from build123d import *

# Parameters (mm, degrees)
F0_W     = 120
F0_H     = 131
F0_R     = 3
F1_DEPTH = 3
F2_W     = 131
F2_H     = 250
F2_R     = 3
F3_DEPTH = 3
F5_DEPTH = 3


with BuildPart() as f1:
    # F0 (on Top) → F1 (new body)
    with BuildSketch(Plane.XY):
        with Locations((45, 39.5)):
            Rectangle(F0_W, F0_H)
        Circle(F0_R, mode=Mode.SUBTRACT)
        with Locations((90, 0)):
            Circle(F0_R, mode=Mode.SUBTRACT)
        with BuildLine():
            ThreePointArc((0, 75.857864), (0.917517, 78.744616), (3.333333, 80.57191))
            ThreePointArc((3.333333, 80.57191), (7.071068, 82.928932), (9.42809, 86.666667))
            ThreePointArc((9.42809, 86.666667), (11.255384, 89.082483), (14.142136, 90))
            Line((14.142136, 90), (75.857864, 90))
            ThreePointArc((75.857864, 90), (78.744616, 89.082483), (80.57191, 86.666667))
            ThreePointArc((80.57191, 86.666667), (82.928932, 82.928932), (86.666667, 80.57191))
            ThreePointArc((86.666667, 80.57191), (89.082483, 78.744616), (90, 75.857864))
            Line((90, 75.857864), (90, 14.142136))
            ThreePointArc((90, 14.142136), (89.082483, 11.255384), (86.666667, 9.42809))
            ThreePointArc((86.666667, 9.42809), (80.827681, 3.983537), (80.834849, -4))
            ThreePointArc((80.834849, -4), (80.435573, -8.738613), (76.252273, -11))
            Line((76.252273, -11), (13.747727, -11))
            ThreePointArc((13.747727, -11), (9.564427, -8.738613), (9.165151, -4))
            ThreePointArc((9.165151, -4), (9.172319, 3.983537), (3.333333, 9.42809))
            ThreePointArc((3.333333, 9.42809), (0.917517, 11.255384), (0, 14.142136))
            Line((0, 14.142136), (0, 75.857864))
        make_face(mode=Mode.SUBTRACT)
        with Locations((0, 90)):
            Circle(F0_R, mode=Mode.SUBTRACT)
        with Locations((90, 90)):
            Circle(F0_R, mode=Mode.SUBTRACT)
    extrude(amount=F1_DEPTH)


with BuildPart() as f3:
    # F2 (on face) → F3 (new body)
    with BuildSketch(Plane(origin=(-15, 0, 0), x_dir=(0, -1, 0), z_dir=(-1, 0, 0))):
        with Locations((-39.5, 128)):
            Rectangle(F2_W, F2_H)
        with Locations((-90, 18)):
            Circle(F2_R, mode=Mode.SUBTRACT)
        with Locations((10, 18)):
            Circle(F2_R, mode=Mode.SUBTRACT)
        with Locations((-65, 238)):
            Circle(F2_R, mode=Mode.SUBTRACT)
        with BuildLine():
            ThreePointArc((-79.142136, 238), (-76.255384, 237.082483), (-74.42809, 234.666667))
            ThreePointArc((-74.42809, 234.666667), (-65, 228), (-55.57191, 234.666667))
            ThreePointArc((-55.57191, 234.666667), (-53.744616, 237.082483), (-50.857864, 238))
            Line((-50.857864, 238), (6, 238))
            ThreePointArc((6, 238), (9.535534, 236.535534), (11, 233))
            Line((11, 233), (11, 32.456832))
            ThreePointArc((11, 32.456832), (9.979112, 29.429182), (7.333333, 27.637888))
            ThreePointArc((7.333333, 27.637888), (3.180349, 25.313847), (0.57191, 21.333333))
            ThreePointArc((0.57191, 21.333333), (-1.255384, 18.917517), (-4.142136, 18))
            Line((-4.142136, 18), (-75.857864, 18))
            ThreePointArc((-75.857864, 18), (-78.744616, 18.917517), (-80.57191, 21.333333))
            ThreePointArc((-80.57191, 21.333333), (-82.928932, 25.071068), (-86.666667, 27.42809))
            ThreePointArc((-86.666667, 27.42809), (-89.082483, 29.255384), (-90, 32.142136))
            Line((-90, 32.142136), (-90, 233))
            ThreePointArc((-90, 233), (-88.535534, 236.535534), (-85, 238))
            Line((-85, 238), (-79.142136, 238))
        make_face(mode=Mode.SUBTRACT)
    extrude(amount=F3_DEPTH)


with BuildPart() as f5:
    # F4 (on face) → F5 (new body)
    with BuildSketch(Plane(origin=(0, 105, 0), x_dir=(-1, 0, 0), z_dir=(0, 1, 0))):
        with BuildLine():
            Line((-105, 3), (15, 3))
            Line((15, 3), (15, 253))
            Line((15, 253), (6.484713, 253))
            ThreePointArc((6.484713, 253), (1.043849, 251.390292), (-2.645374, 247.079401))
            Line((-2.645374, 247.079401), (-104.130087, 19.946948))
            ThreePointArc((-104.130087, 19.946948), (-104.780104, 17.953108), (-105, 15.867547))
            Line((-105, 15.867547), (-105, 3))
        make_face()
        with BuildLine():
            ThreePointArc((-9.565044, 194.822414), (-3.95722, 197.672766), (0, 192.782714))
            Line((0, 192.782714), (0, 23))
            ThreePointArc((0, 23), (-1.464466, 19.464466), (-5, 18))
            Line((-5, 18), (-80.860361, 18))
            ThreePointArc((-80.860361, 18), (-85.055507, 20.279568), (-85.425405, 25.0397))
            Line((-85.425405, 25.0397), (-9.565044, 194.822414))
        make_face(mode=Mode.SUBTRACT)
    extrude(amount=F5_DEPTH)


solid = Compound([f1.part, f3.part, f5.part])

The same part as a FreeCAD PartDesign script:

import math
import FreeCAD as App
import Part
import Sketcher
Q = App.Units.Quantity


def add_polygon(sketch, points):
    """Adds a closed chain of lines whose ends are joined by coincident constraints."""
    first, n = sketch.GeometryCount, len(points)
    for a, b in zip(points, points[1:] + points[:1]):
        sketch.addGeometry(Part.LineSegment(App.Vector(*a, 0), App.Vector(*b, 0)), False)
    for i in range(n):
        sketch.addConstraint(Sketcher.Constraint("Coincident", first + i, 2, first + (i + 1) % n, 1))

doc = App.newDocument("Part")
body = doc.addObject("PartDesign::Body", "Body")

# Sketch on XY plane
sketch1 = body.newObject("Sketcher::SketchObject", "Sketch")
sketch1.AttachmentSupport = (doc.getObject("XY_Plane"), [""])
sketch1.MapMode = "FlatFace"
add_polygon(sketch1, [(-15, 105), (-15, -26), (105, -26), (105, 105)])  # lines 0-3
sketch1.addGeometry(Part.Circle(App.Vector(0, 0, 0), App.Vector(0, 0, 1), 3), False)  # 4
sketch1.addGeometry(Part.Circle(App.Vector(90, 0, 0), App.Vector(0, 0, 1), 3), False)  # 5
sketch1.addGeometry(Part.LineSegment(App.Vector(0, 14.142136, 0), App.Vector(0, 75.857864, 0)), False)  # 6
sketch1.addGeometry(Part.ArcOfCircle(Part.Circle(App.Vector(5, 75.857865, 0), App.Vector(0, 0, 1), 5), math.radians(109.471227), math.radians(180.000008)), False)  # 7
sketch1.addGeometry(Part.ArcOfCircle(Part.Circle(App.Vector(0.000006, 89.999994, 0), App.Vector(0, 0, 1), 9.999992), math.radians(-70.5288), math.radians(-19.4712)), False)  # 8
sketch1.addGeometry(Part.ArcOfCircle(Part.Circle(App.Vector(14.142135, 85, 0), App.Vector(0, 0, 1), 5), math.radians(89.999992), math.radians(160.528773)), False)  # 9
sketch1.addGeometry(Part.LineSegment(App.Vector(14.142136, 90, 0), App.Vector(75.857864, 90, 0)), False)  # 10
sketch1.addGeometry(Part.ArcOfCircle(Part.Circle(App.Vector(75.857865, 85, 0), App.Vector(0, 0, 1), 5), math.radians(19.471227), math.radians(90.000008)), False)  # 11
sketch1.addGeometry(Part.ArcOfCircle(Part.Circle(App.Vector(89.999994, 89.999994, 0), App.Vector(0, 0, 1), 9.999992), math.radians(-160.5288), math.radians(-109.4712)), False)  # 12
sketch1.addGeometry(Part.ArcOfCircle(Part.Circle(App.Vector(85, 75.857865, 0), App.Vector(0, 0, 1), 5), math.radians(-0.000008), math.radians(70.528773)), False)  # 13
sketch1.addGeometry(Part.LineSegment(App.Vector(90, 75.857864, 0), App.Vector(90, 14.142136, 0)), False)  # 14
sketch1.addGeometry(Part.ArcOfCircle(Part.Circle(App.Vector(85, 14.142135, 0), App.Vector(0, 0, 1), 5), math.radians(-70.528773), math.radians(0.000008)), False)  # 15
sketch1.addGeometry(Part.ArcOfCircle(Part.Circle(App.Vector(89.999998, 0.000001, 0), App.Vector(0, 0, 1), 9.999998), math.radians(109.471212), math.radians(203.578187)), False)  # 16
sketch1.addGeometry(Part.ArcOfCircle(Part.Circle(App.Vector(76.252273, -6, 0), App.Vector(0, 0, 1), 5), math.radians(-89.999998), math.radians(23.578173)), False)  # 17
sketch1.addGeometry(Part.LineSegment(App.Vector(76.252273, -11, 0), App.Vector(13.747727, -11, 0)), False)  # 18
sketch1.addGeometry(Part.ArcOfCircle(Part.Circle(App.Vector(13.747727, -6, 0), App.Vector(0, 0, 1), 5), math.radians(156.421827), math.radians(269.999998)), False)  # 19
sketch1.addGeometry(Part.ArcOfCircle(Part.Circle(App.Vector(0.000002, 0.000001, 0), App.Vector(0, 0, 1), 9.999998), math.radians(-23.578187), math.radians(70.528788)), False)  # 20
sketch1.addGeometry(Part.ArcOfCircle(Part.Circle(App.Vector(5, 14.142135, 0), App.Vector(0, 0, 1), 5), math.radians(179.999992), math.radians(250.528773)), False)  # 21
sketch1.addGeometry(Part.Circle(App.Vector(0, 90, 0), App.Vector(0, 0, 1), 3), False)  # 22
sketch1.addGeometry(Part.Circle(App.Vector(90, 90, 0), App.Vector(0, 0, 1), 3), False)  # 23
sketch1.addConstraint([
    Sketcher.Constraint("Tangent", 6, 2, 7, 2),
    Sketcher.Constraint("Tangent", 7, 1, 8, 1),
    Sketcher.Constraint("Tangent", 8, 2, 9, 2),
    Sketcher.Constraint("Tangent", 9, 1, 10, 1),
    Sketcher.Constraint("Tangent", 10, 2, 11, 2),
    Sketcher.Constraint("Tangent", 11, 1, 12, 1),
    Sketcher.Constraint("Tangent", 12, 2, 13, 2),
    Sketcher.Constraint("Tangent", 13, 1, 14, 1),
    Sketcher.Constraint("Tangent", 14, 2, 15, 2),
    Sketcher.Constraint("Tangent", 15, 1, 16, 1),
    Sketcher.Constraint("Tangent", 16, 2, 17, 2),
    Sketcher.Constraint("Tangent", 17, 1, 18, 1),
    Sketcher.Constraint("Tangent", 18, 2, 19, 2),
    Sketcher.Constraint("Tangent", 19, 1, 20, 1),
    Sketcher.Constraint("Tangent", 20, 2, 21, 2),
    Sketcher.Constraint("Tangent", 21, 1, 6, 1),
    Sketcher.Constraint("Vertical", 0),
    Sketcher.Constraint("Horizontal", 1),
    Sketcher.Constraint("Vertical", 2),
    Sketcher.Constraint("Horizontal", 3),
    Sketcher.Constraint("Vertical", 6),
    Sketcher.Constraint("Horizontal", 10),
    Sketcher.Constraint("Vertical", 14),
    Sketcher.Constraint("Horizontal", 18),
    Sketcher.Constraint("Coincident", 4, 3, -1, 1),
    Sketcher.Constraint("Coincident", 20, 3, -1, 1),
    Sketcher.Constraint("Coincident", 16, 3, 5, 3),
    Sketcher.Constraint("Coincident", 22, 3, 8, 3),
    Sketcher.Constraint("Coincident", 23, 3, 12, 3),
    Sketcher.Constraint("Equal", 4, 5),
    Sketcher.Constraint("Equal", 7, 9),
    Sketcher.Constraint("Equal", 9, 11),
    Sketcher.Constraint("Equal", 8, 12),
    Sketcher.Constraint("Equal", 11, 13),
    Sketcher.Constraint("Equal", 13, 15),
    Sketcher.Constraint("Equal", 15, 17),
    Sketcher.Constraint("Equal", 17, 19),
    Sketcher.Constraint("Equal", 16, 20),
    Sketcher.Constraint("Equal", 19, 21),
    Sketcher.Constraint("Equal", 5, 22),
    Sketcher.Constraint("Equal", 22, 23),
    Sketcher.Constraint("PointOnObject", 5, 3, -1),
    Sketcher.Constraint("PointOnObject", 22, 3, -2),
    Sketcher.Constraint("PointOnObject", 6, 2, -2),
    Sketcher.Constraint("Horizontal", 8, 3, 12, 3),
    Sketcher.Constraint("Horizontal", 7, 3, 13, 3),
    Sketcher.Constraint("Horizontal", 15, 3, 21, 3),
    Sketcher.Constraint("Horizontal", 23, 3, 9, 1),
    Sketcher.Constraint("Vertical", 12, 2, 15, 1),
    Sketcher.Constraint("Equal", 10, 6),
    Sketcher.Constraint("Diameter", 4, Q("6 mm")),
    Sketcher.Constraint("Radius", 7, Q("5 mm")),
    Sketcher.Constraint("Radius", 16, Q("9.999998 mm")),
    Sketcher.Constraint("DistanceX", 1, 1, 1, 2, Q("120 mm")),
    Sketcher.Constraint("DistanceY", 0, 2, 0, 1, Q("131 mm")),
    Sketcher.Constraint("DistanceX", -1, 1, 5, 3, Q("90 mm")),
    Sketcher.Constraint("DistanceY", 17, 3, -1, 1, Q("6 mm")),
    Sketcher.Constraint("DistanceX", 0, 2, -1, 1, Q("15 mm")),
    Sketcher.Constraint("DistanceY", 0, 2, -1, 1, Q("26 mm")),
])
pad1 = body.newObject("PartDesign::Pad", "Pad")
pad1.Profile = sketch1
pad1.Length = 3
body2 = doc.addObject("PartDesign::Body", "Body001")

# Sketch on YZ plane
sketch2 = body2.newObject("Sketcher::SketchObject", "Sketch001")
sketch2.AttachmentSupport = (doc.getObject("YZ_Plane001"), [""])
sketch2.MapMode = "FlatFace"
sketch2.AttachmentOffset = App.Placement(App.Vector(0, 0, -15), App.Rotation())
add_polygon(sketch2, [(105, 253), (105, 3), (-26, 3), (-26, 253)])  # lines 0-3
sketch2.addGeometry(Part.Circle(App.Vector(90, 18, 0), App.Vector(0, 0, 1), 3), False)  # 4
sketch2.addGeometry(Part.Circle(App.Vector(-10, 18, 0), App.Vector(0, 0, 1), 3), False)  # 5
sketch2.addGeometry(Part.Circle(App.Vector(65, 238, 0), App.Vector(0, 0, 1), 3), False)  # 6
sketch2.addGeometry(Part.LineSegment(App.Vector(85, 238, 0), App.Vector(79.142136, 238, 0)), False)  # 7
sketch2.addGeometry(Part.ArcOfCircle(Part.Circle(App.Vector(79.142135, 233, 0), App.Vector(0, 0, 1), 5), math.radians(89.999992), math.radians(160.528773)), False)  # 8
sketch2.addGeometry(Part.ArcOfCircle(Part.Circle(App.Vector(65, 237.999999, 0), App.Vector(0, 0, 1), 9.999999), math.radians(-160.528784), math.radians(-19.471216)), False)  # 9
sketch2.addGeometry(Part.ArcOfCircle(Part.Circle(App.Vector(50.857865, 233, 0), App.Vector(0, 0, 1), 5), math.radians(19.471227), math.radians(90.000008)), False)  # 10
sketch2.addGeometry(Part.LineSegment(App.Vector(50.857864, 238, 0), App.Vector(-6, 238, 0)), False)  # 11
sketch2.addGeometry(Part.ArcOfCircle(Part.Circle(App.Vector(-6, 233, 0), App.Vector(0, 0, 1), 5), math.radians(89.999996), math.radians(180.000004)), False)  # 12
sketch2.addGeometry(Part.LineSegment(App.Vector(-11, 233, 0), App.Vector(-11, 32.456832, 0)), False)  # 13
sketch2.addGeometry(Part.ArcOfCircle(Part.Circle(App.Vector(-5.999999, 32.456833, 0), App.Vector(0, 0, 1), 5.000001), math.radians(-179.999991), math.radians(-105.466013)), False)  # 14
sketch2.addGeometry(Part.ArcOfCircle(Part.Circle(App.Vector(-9.999999, 18.000002, 0), App.Vector(0, 0, 1), 9.999998), math.radians(19.471213), math.radians(74.53399)), False)  # 15
sketch2.addGeometry(Part.ArcOfCircle(Part.Circle(App.Vector(4.142135, 23, 0), App.Vector(0, 0, 1), 5), math.radians(-160.528773), math.radians(-89.999992)), False)  # 16
sketch2.addGeometry(Part.LineSegment(App.Vector(4.142136, 18, 0), App.Vector(75.857864, 18, 0)), False)  # 17
sketch2.addGeometry(Part.ArcOfCircle(Part.Circle(App.Vector(75.857865, 23, 0), App.Vector(0, 0, 1), 5), math.radians(-90.000008), math.radians(-19.471227)), False)  # 18
sketch2.addGeometry(Part.ArcOfCircle(Part.Circle(App.Vector(89.999994, 18.000006, 0), App.Vector(0, 0, 1), 9.999992), math.radians(109.4712), math.radians(160.5288)), False)  # 19
sketch2.addGeometry(Part.ArcOfCircle(Part.Circle(App.Vector(85, 32.142135, 0), App.Vector(0, 0, 1), 5), math.radians(-70.528773), math.radians(0.000008)), False)  # 20
sketch2.addGeometry(Part.LineSegment(App.Vector(90, 32.142136, 0), App.Vector(90, 233, 0)), False)  # 21
sketch2.addGeometry(Part.ArcOfCircle(Part.Circle(App.Vector(85, 233, 0), App.Vector(0, 0, 1), 5), math.radians(-0.000004), math.radians(90.000004)), False)  # 22
sketch2.addConstraint([
    Sketcher.Constraint("Tangent", 7, 2, 8, 1),
    Sketcher.Constraint("Tangent", 8, 2, 9, 2),
    Sketcher.Constraint("Tangent", 9, 1, 10, 1),
    Sketcher.Constraint("Tangent", 10, 2, 11, 1),
    Sketcher.Constraint("Tangent", 11, 2, 12, 1),
    Sketcher.Constraint("Tangent", 12, 2, 13, 1),
    Sketcher.Constraint("Tangent", 13, 2, 14, 1),
    Sketcher.Constraint("Tangent", 14, 2, 15, 2),
    Sketcher.Constraint("Tangent", 15, 1, 16, 1),
    Sketcher.Constraint("Tangent", 16, 2, 17, 1),
    Sketcher.Constraint("Tangent", 17, 2, 18, 1),
    Sketcher.Constraint("Tangent", 18, 2, 19, 2),
    Sketcher.Constraint("Tangent", 19, 1, 20, 1),
    Sketcher.Constraint("Tangent", 20, 2, 21, 1),
    Sketcher.Constraint("Tangent", 21, 2, 22, 1),
    Sketcher.Constraint("Tangent", 22, 2, 7, 1),
    Sketcher.Constraint("Vertical", 0),
    Sketcher.Constraint("Horizontal", 1),
    Sketcher.Constraint("Vertical", 2),
    Sketcher.Constraint("Horizontal", 3),
    Sketcher.Constraint("Horizontal", 7),
    Sketcher.Constraint("Horizontal", 11),
    Sketcher.Constraint("Vertical", 13),
    Sketcher.Constraint("Horizontal", 17),
    Sketcher.Constraint("Vertical", 21),
    Sketcher.Constraint("Coincident", 9, 3, 6, 3),
    Sketcher.Constraint("Coincident", 15, 3, 5, 3),
    Sketcher.Constraint("Coincident", 19, 3, 4, 3),
    Sketcher.Constraint("Equal", 4, 5),
    Sketcher.Constraint("Equal", 5, 6),
    Sketcher.Constraint("Equal", 8, 10),
    Sketcher.Constraint("Equal", 10, 12),
    Sketcher.Constraint("Equal", 12, 14),
    Sketcher.Constraint("Equal", 9, 15),
    Sketcher.Constraint("Equal", 14, 16),
    Sketcher.Constraint("Equal", 16, 18),
    Sketcher.Constraint("Equal", 18, 20),
    Sketcher.Constraint("Equal", 20, 22),
    Sketcher.Constraint("Horizontal", 4, 3, 5, 3),
    Sketcher.Constraint("Horizontal", 8, 3, 10, 3),
    Sketcher.Constraint("Horizontal", 9, 3, 7, 2),
    Sketcher.Constraint("Horizontal", 15, 3, 16, 2),
    Sketcher.Constraint("Horizontal", 15, 1, 18, 2),
    Sketcher.Constraint("Vertical", 4, 3, 20, 2),
    Sketcher.Constraint("Diameter", 4, Q("6 mm")),
    Sketcher.Constraint("Radius", 8, Q("5 mm")),
    Sketcher.Constraint("Radius", 9, Q("9.999999 mm")),
    Sketcher.Constraint("DistanceX", 1, 2, 1, 1, Q("131 mm")),
    Sketcher.Constraint("DistanceY", 0, 2, 0, 1, Q("250 mm")),
    Sketcher.Constraint("DistanceX", -1, 1, 4, 3, Q("90 mm")),
    Sketcher.Constraint("DistanceY", -1, 1, 4, 3, Q("18 mm")),
    Sketcher.Constraint("DistanceX", 5, 3, -1, 1, Q("10 mm")),
    Sketcher.Constraint("DistanceX", -1, 1, 6, 3, Q("65 mm")),
    Sketcher.Constraint("DistanceY", -1, 1, 6, 3, Q("238 mm")),
    Sketcher.Constraint("DistanceX", 12, 3, -1, 1, Q("6 mm")),
    Sketcher.Constraint("DistanceX", -1, 1, 0, 2, Q("105 mm")),
    Sketcher.Constraint("DistanceY", -1, 1, 0, 2, Q("3 mm")),
])
pad2 = body2.newObject("PartDesign::Pad", "Pad001")
pad2.Profile = sketch2
pad2.Length = 3
pad2.Reversed = True
body3 = doc.addObject("PartDesign::Body", "Body002")

# Sketch on XZ plane
sketch3 = body3.newObject("Sketcher::SketchObject", "Sketch002")
sketch3.AttachmentSupport = (doc.getObject("XZ_Plane002"), [""])
sketch3.MapMode = "FlatFace"
sketch3.AttachmentOffset = App.Placement(App.Vector(0, 0, -105), App.Rotation())
sketch3.addGeometry([
    Part.LineSegment(App.Vector(105, 3, 0), App.Vector(-15, 3, 0)),  # 0
    Part.LineSegment(App.Vector(-15, 3, 0), App.Vector(-15, 253, 0)),  # 1
    Part.LineSegment(App.Vector(-15, 253, 0), App.Vector(-6.484713, 253, 0)),  # 2
    Part.ArcOfCircle(Part.Circle(App.Vector(-6.484713, 243, 0), App.Vector(0, 0, 1), 10), math.radians(24.0755), math.radians(90.000001)),  # 3
    Part.LineSegment(App.Vector(2.645374, 247.079401, 0), App.Vector(104.130087, 19.946948, 0)),  # 4
    Part.ArcOfCircle(Part.Circle(App.Vector(94.999996, 15.867546, 0), App.Vector(0, 0, 1), 10.000004), math.radians(0.000004), math.radians(24.075495)),  # 5
    Part.LineSegment(App.Vector(105, 15.867547, 0), App.Vector(105, 3, 0)),  # 6
    Part.LineSegment(App.Vector(85.425405, 25.0397, 0), App.Vector(9.565044, 194.822414, 0)),  # 7
    Part.ArcOfCircle(Part.Circle(App.Vector(5, 192.782714, 0), App.Vector(0, 0, 1), 5), math.radians(24.075497), math.radians(179.999996)),  # 8
    Part.LineSegment(App.Vector(0, 192.782714, 0), App.Vector(0, 23, 0)),  # 9
    Part.ArcOfCircle(Part.Circle(App.Vector(5, 23, 0), App.Vector(0, 0, 1), 5), math.radians(179.999996), math.radians(270.000004)),  # 10
    Part.LineSegment(App.Vector(5, 18, 0), App.Vector(80.860361, 18, 0)),  # 11
    Part.ArcOfCircle(Part.Circle(App.Vector(80.860361, 23, 0), App.Vector(0, 0, 1), 5), math.radians(-89.999999), math.radians(24.075489)),  # 12
], False)
sketch3.addConstraint([
    Sketcher.Constraint("Coincident", 0, 2, 1, 1),
    Sketcher.Constraint("Coincident", 1, 2, 2, 1),
    Sketcher.Constraint("Tangent", 2, 2, 3, 2),
    Sketcher.Constraint("Tangent", 3, 1, 4, 1),
    Sketcher.Constraint("Tangent", 4, 2, 5, 2),
    Sketcher.Constraint("Tangent", 5, 1, 6, 1),
    Sketcher.Constraint("Coincident", 6, 2, 0, 1),
    Sketcher.Constraint("Tangent", 7, 2, 8, 1),
    Sketcher.Constraint("Tangent", 8, 2, 9, 1),
    Sketcher.Constraint("Tangent", 9, 2, 10, 1),
    Sketcher.Constraint("Tangent", 10, 2, 11, 1),
    Sketcher.Constraint("Tangent", 11, 2, 12, 1),
    Sketcher.Constraint("Tangent", 12, 2, 7, 1),
    Sketcher.Constraint("Horizontal", 0),
    Sketcher.Constraint("Vertical", 1),
    Sketcher.Constraint("Horizontal", 2),
    Sketcher.Constraint("Vertical", 6),
    Sketcher.Constraint("Vertical", 9),
    Sketcher.Constraint("Horizontal", 11),
    Sketcher.Constraint("Equal", 8, 10),
    Sketcher.Constraint("Equal", 10, 12),
    Sketcher.Constraint("PointOnObject", 8, 2, -2),
    Sketcher.Constraint("Parallel", 4, 7),
    Sketcher.Constraint("Radius", 3, Q("10 mm")),
    Sketcher.Constraint("Radius", 8, Q("5 mm")),
    Sketcher.Constraint("DistanceX", 0, 2, 0, 1, Q("120 mm")),
    Sketcher.Constraint("DistanceY", 1, 1, 1, 2, Q("250 mm")),
    Sketcher.Constraint("DistanceY", -1, 1, 3, 3, Q("243 mm")),
    Sketcher.Constraint("DistanceY", -1, 1, 10, 3, Q("23 mm")),
    Sketcher.Constraint("DistanceX", 0, 2, -1, 1, Q("15 mm")),
    Sketcher.Constraint("Radius", 5, Q("10.000004 mm")),
    Sketcher.Constraint("DistanceX", 11, 1, 11, 2, Q("75.860361 mm")),
    Sketcher.Constraint("DistanceY", 5, 3, 4, 2, Q("4.079402 mm")),
    Sketcher.Constraint("Distance", 4, Q("248.773588 mm")),
])
pad3 = body3.newObject("PartDesign::Pad", "Pad002")
pad3.Profile = sketch3
pad3.Length = 3
pad3.Reversed = True

doc.recompute()
